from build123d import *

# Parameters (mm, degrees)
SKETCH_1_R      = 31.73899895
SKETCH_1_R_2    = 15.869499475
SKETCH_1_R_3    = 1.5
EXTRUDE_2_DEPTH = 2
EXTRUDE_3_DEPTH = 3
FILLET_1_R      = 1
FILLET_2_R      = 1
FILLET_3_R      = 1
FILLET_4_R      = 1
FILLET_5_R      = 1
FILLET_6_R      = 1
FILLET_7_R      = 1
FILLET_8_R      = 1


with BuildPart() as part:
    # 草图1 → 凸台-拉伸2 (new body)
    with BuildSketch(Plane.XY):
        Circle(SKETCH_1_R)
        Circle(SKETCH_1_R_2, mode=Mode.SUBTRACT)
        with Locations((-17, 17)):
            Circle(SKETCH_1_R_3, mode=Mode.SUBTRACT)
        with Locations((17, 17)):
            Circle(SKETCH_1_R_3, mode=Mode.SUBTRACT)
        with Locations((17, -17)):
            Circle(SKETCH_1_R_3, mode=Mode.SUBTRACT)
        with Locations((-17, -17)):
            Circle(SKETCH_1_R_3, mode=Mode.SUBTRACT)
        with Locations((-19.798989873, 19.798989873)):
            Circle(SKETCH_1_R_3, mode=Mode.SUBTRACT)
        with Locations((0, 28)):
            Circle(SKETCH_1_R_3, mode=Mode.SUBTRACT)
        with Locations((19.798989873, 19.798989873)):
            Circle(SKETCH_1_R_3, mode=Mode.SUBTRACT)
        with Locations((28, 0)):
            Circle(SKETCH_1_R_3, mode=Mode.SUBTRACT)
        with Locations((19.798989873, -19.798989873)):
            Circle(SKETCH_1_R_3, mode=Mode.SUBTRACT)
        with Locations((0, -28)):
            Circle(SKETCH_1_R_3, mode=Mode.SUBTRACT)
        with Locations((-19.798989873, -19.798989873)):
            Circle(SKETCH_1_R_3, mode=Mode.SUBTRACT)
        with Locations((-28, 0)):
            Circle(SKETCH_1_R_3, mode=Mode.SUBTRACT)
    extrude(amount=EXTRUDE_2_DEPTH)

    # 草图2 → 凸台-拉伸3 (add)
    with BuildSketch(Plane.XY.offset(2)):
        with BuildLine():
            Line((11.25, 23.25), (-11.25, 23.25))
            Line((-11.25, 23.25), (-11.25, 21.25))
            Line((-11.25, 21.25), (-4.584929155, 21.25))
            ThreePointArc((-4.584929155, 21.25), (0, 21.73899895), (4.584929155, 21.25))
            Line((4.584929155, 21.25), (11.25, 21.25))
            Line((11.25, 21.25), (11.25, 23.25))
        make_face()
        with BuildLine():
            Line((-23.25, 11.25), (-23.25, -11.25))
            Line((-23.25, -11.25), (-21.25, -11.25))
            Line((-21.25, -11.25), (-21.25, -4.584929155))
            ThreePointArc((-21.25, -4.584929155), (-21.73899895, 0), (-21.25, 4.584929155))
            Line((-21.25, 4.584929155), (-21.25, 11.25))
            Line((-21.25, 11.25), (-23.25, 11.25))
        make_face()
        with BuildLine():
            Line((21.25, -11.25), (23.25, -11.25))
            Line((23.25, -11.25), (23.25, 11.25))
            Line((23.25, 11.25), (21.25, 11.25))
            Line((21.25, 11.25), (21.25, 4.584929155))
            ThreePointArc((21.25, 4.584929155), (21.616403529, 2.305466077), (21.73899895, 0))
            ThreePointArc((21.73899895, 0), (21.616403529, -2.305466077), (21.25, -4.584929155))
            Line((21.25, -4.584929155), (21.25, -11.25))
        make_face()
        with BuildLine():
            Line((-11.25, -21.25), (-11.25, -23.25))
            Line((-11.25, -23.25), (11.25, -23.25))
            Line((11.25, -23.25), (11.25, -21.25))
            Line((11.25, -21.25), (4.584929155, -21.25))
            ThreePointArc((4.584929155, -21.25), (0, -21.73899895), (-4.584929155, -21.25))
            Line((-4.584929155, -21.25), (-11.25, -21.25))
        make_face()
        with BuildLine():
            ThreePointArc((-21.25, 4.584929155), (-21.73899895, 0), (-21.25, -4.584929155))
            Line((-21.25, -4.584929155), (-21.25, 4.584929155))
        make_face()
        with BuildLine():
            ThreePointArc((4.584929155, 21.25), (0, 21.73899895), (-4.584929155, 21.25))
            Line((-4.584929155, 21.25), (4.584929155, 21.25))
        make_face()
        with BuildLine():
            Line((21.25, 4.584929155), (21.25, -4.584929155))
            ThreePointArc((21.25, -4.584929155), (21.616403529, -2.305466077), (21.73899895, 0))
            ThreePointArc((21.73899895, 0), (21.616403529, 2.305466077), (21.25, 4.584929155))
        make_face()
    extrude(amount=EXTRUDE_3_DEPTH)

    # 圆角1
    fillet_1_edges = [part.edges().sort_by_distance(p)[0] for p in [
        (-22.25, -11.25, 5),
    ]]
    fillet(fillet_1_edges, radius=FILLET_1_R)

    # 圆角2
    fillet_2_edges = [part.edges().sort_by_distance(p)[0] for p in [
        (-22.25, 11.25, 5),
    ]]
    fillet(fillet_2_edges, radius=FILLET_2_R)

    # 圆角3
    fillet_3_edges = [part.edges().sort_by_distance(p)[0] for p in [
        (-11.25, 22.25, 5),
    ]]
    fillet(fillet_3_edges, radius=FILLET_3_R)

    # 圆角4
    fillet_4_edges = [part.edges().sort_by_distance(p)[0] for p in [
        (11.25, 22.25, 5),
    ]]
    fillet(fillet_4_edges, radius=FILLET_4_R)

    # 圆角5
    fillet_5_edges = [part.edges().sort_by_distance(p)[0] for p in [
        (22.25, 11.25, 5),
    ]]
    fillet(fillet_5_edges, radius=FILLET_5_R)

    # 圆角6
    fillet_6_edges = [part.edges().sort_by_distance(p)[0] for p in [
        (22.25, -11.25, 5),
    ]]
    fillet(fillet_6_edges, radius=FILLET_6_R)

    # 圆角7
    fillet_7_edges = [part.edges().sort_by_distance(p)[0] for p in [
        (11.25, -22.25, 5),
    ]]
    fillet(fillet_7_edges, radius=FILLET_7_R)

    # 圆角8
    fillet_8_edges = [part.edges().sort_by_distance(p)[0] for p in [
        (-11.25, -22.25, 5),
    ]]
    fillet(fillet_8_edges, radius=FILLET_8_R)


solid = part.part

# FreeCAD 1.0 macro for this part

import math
import FreeCAD as App
import Part
import Sketcher
Q = App.Units.Quantity


def edges_at(feature, points):
    """Names of the edges that pass closest to the given points."""
    edges = feature.Shape.Edges
    near = lambda p: min(range(len(edges)), key=lambda i: edges[i].distToShape(Part.Vertex(*p))[0])
    return sorted({f"Edge{near(p) + 1}" for p in points})

doc = App.newDocument("Part")
body = doc.addObject("PartDesign::Body", "Body")

# Sketch on XY plane
sketch1 = doc.addObject("Sketcher::SketchObject", "Sketch")
body.addObject(sketch1)
sketch1.AttachmentSupport = (doc.XY_Plane, [""])
sketch1.MapMode = "FlatFace"
sketch1.addGeometry(Part.Circle(App.Vector(0, 0, 0), App.Vector(0, 0, 1), 31.7), False)
sketch1.addGeometry(Part.Circle(App.Vector(-19.8, -19.8, 0), App.Vector(0, 0, 1), 1.5), False)
sketch1.addGeometry(Part.Circle(App.Vector(-17, -17, 0), App.Vector(0, 0, 1), 1.5), False)
sketch1.addGeometry(Part.Circle(App.Vector(0, -28, 0), App.Vector(0, 0, 1), 1.5), False)
sketch1.addGeometry(Part.Circle(App.Vector(19.8, -19.8, 0), App.Vector(0, 0, 1), 1.5), False)
sketch1.addGeometry(Part.Circle(App.Vector(17, -17, 0), App.Vector(0, 0, 1), 1.5), False)
sketch1.addGeometry(Part.Circle(App.Vector(-28, 0, 0), App.Vector(0, 0, 1), 1.5), False)
sketch1.addGeometry(Part.Circle(App.Vector(-17, 17, 0), App.Vector(0, 0, 1), 1.5), False)
sketch1.addGeometry(Part.Circle(App.Vector(-19.8, 19.8, 0), App.Vector(0, 0, 1), 1.5), False)
sketch1.addGeometry(Part.Circle(App.Vector(0, 0, 0), App.Vector(0, 0, 1), 15.9), False)
sketch1.addGeometry(Part.Circle(App.Vector(28, 0, 0), App.Vector(0, 0, 1), 1.5), False)
sketch1.addGeometry(Part.Circle(App.Vector(0, 28, 0), App.Vector(0, 0, 1), 1.5), False)
sketch1.addGeometry(Part.Circle(App.Vector(17, 17, 0), App.Vector(0, 0, 1), 1.5), False)
sketch1.addGeometry(Part.Circle(App.Vector(19.8, 19.8, 0), App.Vector(0, 0, 1), 1.5), False)
sketch1.addConstraint(Sketcher.Constraint("Coincident", 0, 3, -1, 1))
sketch1.addConstraint(Sketcher.Constraint("Coincident", 9, 3, -1, 1))
sketch1.addConstraint(Sketcher.Constraint("Equal", 1, 2))
sketch1.addConstraint(Sketcher.Constraint("Equal", 2, 3))
sketch1.addConstraint(Sketcher.Constraint("Equal", 3, 4))
sketch1.addConstraint(Sketcher.Constraint("Equal", 4, 5))
sketch1.addConstraint(Sketcher.Constraint("Equal", 5, 6))
sketch1.addConstraint(Sketcher.Constraint("Equal", 6, 7))
sketch1.addConstraint(Sketcher.Constraint("Equal", 7, 8))
sketch1.addConstraint(Sketcher.Constraint("Equal", 8, 10))
sketch1.addConstraint(Sketcher.Constraint("Equal", 10, 11))
sketch1.addConstraint(Sketcher.Constraint("Equal", 11, 12))
sketch1.addConstraint(Sketcher.Constraint("Equal", 12, 13))
sketch1.addConstraint(Sketcher.Constraint("Symmetric", 5, 3, 7, 3, -1, 1))
sketch1.addConstraint(Sketcher.Constraint("Symmetric", 4, 3, 8, 3, -1, 1))
sketch1.addConstraint(Sketcher.Constraint("Symmetric", 6, 3, 10, 3, -1, 1))
sketch1.addConstraint(Sketcher.Constraint("Symmetric", 3, 3, 11, 3, -1, 1))
sketch1.addConstraint(Sketcher.Constraint("Symmetric", 2, 3, 12, 3, -1, 1))
sketch1.addConstraint(Sketcher.Constraint("Symmetric", 1, 3, 13, 3, -1, 1))
sketch1.addConstraint(Sketcher.Constraint("Symmetric", 1, 3, 4, 3, -2))
sketch1.addConstraint(Sketcher.Constraint("Symmetric", 2, 3, 5, 3, -2))
sketch1.addConstraint(Sketcher.Constraint("PointOnObject", 3, 3, -2))
sketch1.addConstraint(Sketcher.Constraint("PointOnObject", 6, 3, -1))
sketch1.addConstraint(Sketcher.Constraint("Diameter", 1, Q("3 mm")))
sketch1.addConstraint(Sketcher.Constraint("Diameter", 9, Q("31.738999 mm")))
sketch1.addConstraint(Sketcher.Constraint("DistanceX", 2, 3, -1, 1, Q("17 mm")))
sketch1.addConstraint(Sketcher.Constraint("DistanceY", 2, 3, -1, 1, Q("17 mm")))
sketch1.addConstraint(Sketcher.Constraint("DistanceY", 3, 3, -1, 1, Q("28 mm")))
sketch1.addConstraint(Sketcher.Constraint("DistanceX", 6, 3, -1, 1, Q("28 mm")))
sketch1.addConstraint(Sketcher.Constraint("Diameter", 0, Q("63.477998 mm")))
sketch1.addConstraint(Sketcher.Constraint("DistanceX", 1, 3, -1, 1, Q("19.79899 mm")))
sketch1.addConstraint(Sketcher.Constraint("DistanceY", 1, 3, -1, 1, Q("19.79899 mm")))
pad1 = doc.addObject("PartDesign::Pad", "Pad")
body.addObject(pad1)
pad1.Profile = sketch1
pad1.Length = 2

# Sketch on XY plane
sketch2 = doc.addObject("Sketcher::SketchObject", "Sketch001")
body.addObject(sketch2)
sketch2.AttachmentSupport = (doc.XY_Plane, [""])
sketch2.MapMode = "FlatFace"
sketch2.AttachmentOffset = App.Placement(App.Vector(0, 0, 2), App.Rotation())
sketch2.addGeometry(Part.LineSegment(App.Vector(11.2, 23.2, 0), App.Vector(-11.2, 23.2, 0)), False)
sketch2.addGeometry(Part.LineSegment(App.Vector(-11.2, 23.2, 0), App.Vector(-11.2, 21.2, 0)), False)
sketch2.addGeometry(Part.LineSegment(App.Vector(-11.2, 21.2, 0), App.Vector(11.2, 21.2, 0)), False)
sketch2.addGeometry(Part.LineSegment(App.Vector(11.2, 21.2, 0), App.Vector(11.2, 23.2, 0)), False)
sketch2.addGeometry(Part.LineSegment(App.Vector(-23.2, 11.2, 0), App.Vector(-23.2, -11.2, 0)), False)
sketch2.addGeometry(Part.LineSegment(App.Vector(-23.2, -11.2, 0), App.Vector(-21.2, -11.2, 0)), False)
sketch2.addGeometry(Part.LineSegment(App.Vector(-21.2, -11.2, 0), App.Vector(-21.2, 11.2, 0)), False)
sketch2.addGeometry(Part.LineSegment(App.Vector(-21.2, 11.2, 0), App.Vector(-23.2, 11.2, 0)), False)
sketch2.addGeometry(Part.LineSegment(App.Vector(21.2, -11.2, 0), App.Vector(23.2, -11.2, 0)), False)
sketch2.addGeometry(Part.LineSegment(App.Vector(23.2, -11.2, 0), App.Vector(23.2, 11.2, 0)), False)
sketch2.addGeometry(Part.LineSegment(App.Vector(23.2, 11.2, 0), App.Vector(21.2, 11.2, 0)), False)
sketch2.addGeometry(Part.LineSegment(App.Vector(21.2, 11.2, 0), App.Vector(21.2, -11.2, 0)), False)
sketch2.addGeometry(Part.LineSegment(App.Vector(-11.2, -21.2, 0), App.Vector(-11.2, -23.2, 0)), False)
sketch2.addGeometry(Part.LineSegment(App.Vector(-11.2, -23.2, 0), App.Vector(11.2, -23.2, 0)), False)
sketch2.addGeometry(Part.LineSegment(App.Vector(11.2, -23.2, 0), App.Vector(11.2, -21.2, 0)), False)
sketch2.addGeometry(Part.LineSegment(App.Vector(11.2, -21.2, 0), App.Vector(4.6, -21.2, 0)), False)
sketch2.addGeometry(Part.ArcOfCircle(Part.Circle(App.Vector(0, 0, 0), App.Vector(0, 0, 1), 21.7), math.radians(-102), math.radians(-78)), False)
sketch2.addGeometry(Part.LineSegment(App.Vector(-4.6, -21.2, 0), App.Vector(-11.2, -21.2, 0)), False)
sketch2.addConstraint(Sketcher.Constraint("Coincident", 0, 2, 1, 1))
sketch2.addConstraint(Sketcher.Constraint("Coincident", 1, 2, 2, 1))
sketch2.addConstraint(Sketcher.Constraint("Coincident", 2, 2, 3, 1))
sketch2.addConstraint(Sketcher.Constraint("Coincident", 3, 2, 0, 1))
sketch2.addConstraint(Sketcher.Constraint("Coincident", 4, 2, 5, 1))
sketch2.addConstraint(Sketcher.Constraint("Coincident", 5, 2, 6, 1))
sketch2.addConstraint(Sketcher.Constraint("Coincident", 6, 2, 7, 1))
sketch2.addConstraint(Sketcher.Constraint("Coincident", 7, 2, 4, 1))
sketch2.addConstraint(Sketcher.Constraint("Coincident", 8, 2, 9, 1))
sketch2.addConstraint(Sketcher.Constraint("Coincident", 9, 2, 10, 1))
sketch2.addConstraint(Sketcher.Constraint("Coincident", 10, 2, 11, 1))
sketch2.addConstraint(Sketcher.Constraint("Coincident", 11, 2, 8, 1))
sketch2.addConstraint(Sketcher.Constraint("Coincident", 12, 2, 13, 1))
sketch2.addConstraint(Sketcher.Constraint("Coincident", 13, 2, 14, 1))
sketch2.addConstraint(Sketcher.Constraint("Coincident", 14, 2, 15, 1))
sketch2.addConstraint(Sketcher.Constraint("Coincident", 15, 2, 16, 2))
sketch2.addConstraint(Sketcher.Constraint("Coincident", 16, 1, 17, 1))
sketch2.addConstraint(Sketcher.Constraint("Coincident", 17, 2, 12, 1))
sketch2.addConstraint(Sketcher.Constraint("Horizontal", 0))
sketch2.addConstraint(Sketcher.Constraint("Vertical", 1))
sketch2.addConstraint(Sketcher.Constraint("Horizontal", 2))
sketch2.addConstraint(Sketcher.Constraint("Vertical", 3))
sketch2.addConstraint(Sketcher.Constraint("Vertical", 4))
sketch2.addConstraint(Sketcher.Constraint("Horizontal", 5))
sketch2.addConstraint(Sketcher.Constraint("Vertical", 6))
sketch2.addConstraint(Sketcher.Constraint("Horizontal", 7))
sketch2.addConstraint(Sketcher.Constraint("Horizontal", 8))
sketch2.addConstraint(Sketcher.Constraint("Vertical", 9))
sketch2.addConstraint(Sketcher.Constraint("Horizontal", 10))
sketch2.addConstraint(Sketcher.Constraint("Vertical", 11))
sketch2.addConstraint(Sketcher.Constraint("Vertical", 12))
sketch2.addConstraint(Sketcher.Constraint("Horizontal", 13))
sketch2.addConstraint(Sketcher.Constraint("Vertical", 14))
sketch2.addConstraint(Sketcher.Constraint("Horizontal", 15))
sketch2.addConstraint(Sketcher.Constraint("Horizontal", 17))
sketch2.addConstraint(Sketcher.Constraint("Coincident", 16, 3, -1, 1))
sketch2.addConstraint(Sketcher.Constraint("Symmetric", 7, 2, 8, 2, -1, 1))
sketch2.addConstraint(Sketcher.Constraint("Symmetric", 5, 2, 10, 2, -1, 1))
sketch2.addConstraint(Sketcher.Constraint("Symmetric", 3, 2, 12, 2, -1, 1))
sketch2.addConstraint(Sketcher.Constraint("Symmetric", 1, 2, 14, 2, -1, 1))
sketch2.addConstraint(Sketcher.Constraint("Symmetric", 14, 2, 17, 2, -2))
sketch2.addConstraint(Sketcher.Constraint("Horizontal", 5, 2, 8, 2))
sketch2.addConstraint(Sketcher.Constraint("Equal", 10, 1))
sketch2.addConstraint(Sketcher.Constraint("Equal", 13, 4))
sketch2.addConstraint(Sketcher.Constraint("DistanceX", 5, 1, 5, 2, Q("2 mm")))
sketch2.addConstraint(Sketcher.Constraint("DistanceX", 0, 2, 0, 1, Q("22.5 mm")))
sketch2.addConstraint(Sketcher.Constraint("Radius", 16, Q("21.738999 mm")))
sketch2.addConstraint(Sketcher.Constraint("DistanceX", 4, 2, 1, 2, Q("12 mm")))
sketch2.addConstraint(Sketcher.Constraint("DistanceY", 6, 2, 1, 2, Q("10 mm")))
pad2 = doc.addObject("PartDesign::Pad", "Pad001")
body.addObject(pad2)
pad2.Profile = sketch2
pad2.Length = 3
doc.recompute()

fillet = doc.addObject("PartDesign::Fillet", "Fillet")
body.addObject(fillet)
fillet.Base = (pad2, edges_at(pad2, [(-22.25, -11.25, 5)]))
fillet.Radius = 1
doc.recompute()

fillet2 = doc.addObject("PartDesign::Fillet", "Fillet001")
body.addObject(fillet2)
fillet2.Base = (fillet, edges_at(fillet, [(-22.25, 11.25, 5)]))
fillet2.Radius = 1
doc.recompute()

fillet3 = doc.addObject("PartDesign::Fillet", "Fillet002")
body.addObject(fillet3)
fillet3.Base = (fillet2, edges_at(fillet2, [(-11.25, 22.25, 5)]))
fillet3.Radius = 1
doc.recompute()

fillet4 = doc.addObject("PartDesign::Fillet", "Fillet003")
body.addObject(fillet4)
fillet4.Base = (fillet3, edges_at(fillet3, [(11.25, 22.25, 5)]))
fillet4.Radius = 1
doc.recompute()

fillet5 = doc.addObject("PartDesign::Fillet", "Fillet004")
body.addObject(fillet5)
fillet5.Base = (fillet4, edges_at(fillet4, [(22.25, 11.25, 5)]))
fillet5.Radius = 1
doc.recompute()

fillet6 = doc.addObject("PartDesign::Fillet", "Fillet005")
body.addObject(fillet6)
fillet6.Base = (fillet5, edges_at(fillet5, [(22.25, -11.25, 5)]))
fillet6.Radius = 1
doc.recompute()

fillet7 = doc.addObject("PartDesign::Fillet", "Fillet006")
body.addObject(fillet7)
fillet7.Base = (fillet6, edges_at(fillet6, [(11.25, -22.25, 5)]))
fillet7.Radius = 1
doc.recompute()

fillet8 = doc.addObject("PartDesign::Fillet", "Fillet007")
body.addObject(fillet8)
fillet8.Base = (fillet7, edges_at(fillet7, [(-11.25, -22.25, 5)]))
fillet8.Radius = 1

doc.recompute()
